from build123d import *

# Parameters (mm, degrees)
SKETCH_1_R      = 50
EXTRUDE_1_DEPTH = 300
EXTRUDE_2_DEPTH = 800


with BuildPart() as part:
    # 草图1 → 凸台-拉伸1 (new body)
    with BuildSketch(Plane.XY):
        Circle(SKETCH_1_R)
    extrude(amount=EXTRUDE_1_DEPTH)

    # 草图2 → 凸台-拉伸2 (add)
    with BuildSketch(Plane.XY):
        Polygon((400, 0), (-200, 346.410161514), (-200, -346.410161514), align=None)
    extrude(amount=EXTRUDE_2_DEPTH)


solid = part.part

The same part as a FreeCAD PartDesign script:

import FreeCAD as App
import Part
import Sketcher

V = App.Vector
Q = App.Units.Quantity

doc = App.newDocument("Part")
body = doc.addObject("PartDesign::Body", "Body")

sketch1 = doc.addObject("Sketcher::SketchObject", "Sketch")
body.addObject(sketch1)
sketch1.AttachmentSupport = (doc.XY_Plane, [""])
sketch1.MapMode = "FlatFace"
sketch1.addGeometry(Part.Circle(V(0, 0, 0), V(0, 0, 1), 50), False)
sketch1.addConstraint(Sketcher.Constraint("Coincident", 0, 3, -1, 1))
sketch1.addConstraint(Sketcher.Constraint("Diameter", 0, 100.0))
pad1 = doc.addObject("PartDesign::Pad", "Pad")
body.addObject(pad1)
pad1.Profile = sketch1
pad1.Length = 300

sketch2 = doc.addObject("Sketcher::SketchObject", "Sketch001")
body.addObject(sketch2)
sketch2.AttachmentSupport = (doc.XY_Plane, [""])
sketch2.MapMode = "FlatFace"
sketch2.addGeometry(Part.LineSegment(V(400, 0, 0), V(-200, 346, 0)), False)
sketch2.addGeometry(Part.LineSegment(V(-200, 346, 0), V(-200, -346, 0)), False)
sketch2.addGeometry(Part.LineSegment(V(-200, -346, 0), V(400, 0, 0)), False)
sketch2.addConstraint(Sketcher.Constraint("Coincident", 0, 2, 1, 1))
sketch2.addConstraint(Sketcher.Constraint("Coincident", 1, 2, 2, 1))
sketch2.addConstraint(Sketcher.Constraint("Coincident", 2, 2, 0, 1))
sketch2.addConstraint(Sketcher.Constraint("Vertical", 1))
sketch2.addConstraint(Sketcher.Constraint("PointOnObject", 2, 2, -1))
sketch2.addConstraint(Sketcher.Constraint("Equal", 0, 2))
sketch2.addConstraint(Sketcher.Constraint("Angle", 0, Q("150 deg")))
sketch2.addConstraint(Sketcher.Constraint("DistanceX", 0, 2, -1, 1, 200.0))
sketch2.addConstraint(Sketcher.Constraint("DistanceX", -1, 1, 2, 2, 400.0))
pad2 = doc.addObject("PartDesign::Pad", "Pad001")
body.addObject(pad2)
pad2.Profile = sketch2
pad2.Length = 800

doc.recompute()
